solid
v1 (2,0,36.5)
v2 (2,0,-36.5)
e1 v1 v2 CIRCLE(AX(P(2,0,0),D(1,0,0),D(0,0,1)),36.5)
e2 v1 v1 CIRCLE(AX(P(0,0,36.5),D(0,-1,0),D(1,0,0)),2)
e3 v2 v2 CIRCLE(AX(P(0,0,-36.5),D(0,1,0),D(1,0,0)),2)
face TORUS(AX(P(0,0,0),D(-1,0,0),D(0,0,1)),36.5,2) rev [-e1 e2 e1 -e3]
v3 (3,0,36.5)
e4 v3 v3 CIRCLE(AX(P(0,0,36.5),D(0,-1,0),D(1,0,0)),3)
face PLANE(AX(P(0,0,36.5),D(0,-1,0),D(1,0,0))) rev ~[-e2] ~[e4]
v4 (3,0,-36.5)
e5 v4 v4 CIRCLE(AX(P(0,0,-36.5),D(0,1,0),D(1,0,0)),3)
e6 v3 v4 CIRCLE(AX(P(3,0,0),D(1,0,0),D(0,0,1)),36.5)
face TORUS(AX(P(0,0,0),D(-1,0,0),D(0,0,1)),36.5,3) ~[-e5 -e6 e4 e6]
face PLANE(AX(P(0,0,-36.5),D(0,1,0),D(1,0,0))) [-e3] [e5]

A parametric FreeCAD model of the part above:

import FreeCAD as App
import Part
import Sketcher

V = App.Vector

doc = App.newDocument("Part")
body = doc.addObject("PartDesign::Body", "Body")

sketch1 = body.newObject("Sketcher::SketchObject", "Sketch")
sketch1.AttachmentSupport = (doc.getObject("XZ_Plane"), [""])
sketch1.MapMode = "FlatFace"
sketch1.addGeometry(Part.Circle(V(0, 36.5, 0), V(0, 0, 1), 3), False)
sketch1.addGeometry(Part.Circle(V(0, 36.5, 0), V(0, 0, 1), 2), False)
sketch1.addConstraint(Sketcher.Constraint("Coincident", 1, 3, 0, 3))
sketch1.addConstraint(Sketcher.Constraint("PointOnObject", 0, 3, -2))
sketch1.addConstraint(Sketcher.Constraint("Diameter", 0, 6.0))
sketch1.addConstraint(Sketcher.Constraint("Diameter", 1, 4.0))
sketch1.addConstraint(Sketcher.Constraint("DistanceY", -1, 1, 0, 3, 36.5))
revolution = body.newObject("PartDesign::Revolution", "Revolution")
revolution.Profile = sketch1
revolution.ReferenceAxis = (sketch1, ["H_Axis"])
revolution.Angle = 180

doc.recompute()
